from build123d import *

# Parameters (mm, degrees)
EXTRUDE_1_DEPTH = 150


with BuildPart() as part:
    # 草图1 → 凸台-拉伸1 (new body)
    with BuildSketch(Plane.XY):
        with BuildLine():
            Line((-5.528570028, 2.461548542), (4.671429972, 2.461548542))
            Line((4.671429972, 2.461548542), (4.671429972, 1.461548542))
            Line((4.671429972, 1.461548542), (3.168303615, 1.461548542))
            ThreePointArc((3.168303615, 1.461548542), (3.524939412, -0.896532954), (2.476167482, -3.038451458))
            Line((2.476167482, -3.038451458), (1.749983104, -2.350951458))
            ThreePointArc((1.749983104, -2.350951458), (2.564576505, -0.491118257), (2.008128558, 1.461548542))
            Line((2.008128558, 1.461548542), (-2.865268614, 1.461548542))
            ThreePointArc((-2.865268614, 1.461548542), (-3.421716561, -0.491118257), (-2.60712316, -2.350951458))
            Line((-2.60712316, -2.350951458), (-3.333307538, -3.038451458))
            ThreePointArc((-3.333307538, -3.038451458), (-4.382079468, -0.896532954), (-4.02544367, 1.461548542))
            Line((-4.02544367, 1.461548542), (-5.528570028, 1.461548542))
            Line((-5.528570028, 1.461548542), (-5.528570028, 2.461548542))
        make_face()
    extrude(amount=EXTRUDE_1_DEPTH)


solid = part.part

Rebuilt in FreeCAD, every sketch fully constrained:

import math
import FreeCAD as App
import Part
import Sketcher
from FreeCAD import Vector
Q = App.Units.Quantity

doc = App.newDocument("Part")
body = doc.addObject("PartDesign::Body", "Body")

# Sketch on XY plane
sketch1 = doc.addObject("Sketcher::SketchObject", "Sketch")
body.addObject(sketch1)
sketch1.AttachmentSupport = (doc.XY_Plane, [""])
sketch1.MapMode = "FlatFace"
sketch1.addGeometry(Part.LineSegment(Vector(4.7, 2.5, 0), Vector(-5.5, 2.5, 0)), False)
sketch1.addGeometry(Part.LineSegment(Vector(-5.5, 2.5, 0), Vector(-5.5, 1.5, 0)), False)
sketch1.addGeometry(Part.LineSegment(Vector(-5.5, 1.5, 0), Vector(-4, 1.5, 0)), False)
sketch1.addGeometry(Part.ArcOfCircle(Part.Circle(Vector(-0.4, -0.3, 0), Vector(0, 0, 1), 4), math.radians(154), math.radians(223)), False)
sketch1.addGeometry(Part.LineSegment(Vector(-3.3, -3, 0), Vector(-2.6, -2.4, 0)), False)
sketch1.addGeometry(Part.ArcOfCircle(Part.Circle(Vector(-0.4, -0.3, 0), Vector(0, 0, 1), 3), math.radians(144), math.radians(223)), False)
sketch1.addGeometry(Part.LineSegment(Vector(-2.9, 1.5, 0), Vector(2, 1.5, 0)), False)
sketch1.addGeometry(Part.ArcOfCircle(Part.Circle(Vector(-0.4, -0.3, 0), Vector(0, 0, 1), 3), math.radians(-43), math.radians(36)), False)
sketch1.addGeometry(Part.LineSegment(Vector(1.7, -2.4, 0), Vector(2.5, -3, 0)), False)
sketch1.addGeometry(Part.ArcOfCircle(Part.Circle(Vector(-0.4, -0.3, 0), Vector(0, 0, 1), 4), math.radians(-43), math.radians(26)), False)
sketch1.addGeometry(Part.LineSegment(Vector(3.2, 1.5, 0), Vector(4.7, 1.5, 0)), False)
sketch1.addGeometry(Part.LineSegment(Vector(4.7, 1.5, 0), Vector(4.7, 2.5, 0)), False)
sketch1.addConstraint(Sketcher.Constraint("Coincident", 0, 2, 1, 1))
sketch1.addConstraint(Sketcher.Constraint("Coincident", 1, 2, 2, 1))
sketch1.addConstraint(Sketcher.Constraint("Coincident", 2, 2, 3, 1))
sketch1.addConstraint(Sketcher.Constraint("Coincident", 3, 2, 4, 1))
sketch1.addConstraint(Sketcher.Constraint("Coincident", 4, 2, 5, 2))
sketch1.addConstraint(Sketcher.Constraint("Coincident", 5, 1, 6, 1))
sketch1.addConstraint(Sketcher.Constraint("Coincident", 6, 2, 7, 2))
sketch1.addConstraint(Sketcher.Constraint("Coincident", 7, 1, 8, 1))
sketch1.addConstraint(Sketcher.Constraint("Coincident", 8, 2, 9, 1))
sketch1.addConstraint(Sketcher.Constraint("Coincident", 9, 2, 10, 1))
sketch1.addConstraint(Sketcher.Constraint("Coincident", 10, 2, 11, 1))
sketch1.addConstraint(Sketcher.Constraint("Coincident", 11, 2, 0, 1))
sketch1.addConstraint(Sketcher.Constraint("Horizontal", 0))
sketch1.addConstraint(Sketcher.Constraint("Vertical", 1))
sketch1.addConstraint(Sketcher.Constraint("Horizontal", 2))
sketch1.addConstraint(Sketcher.Constraint("Horizontal", 6))
sketch1.addConstraint(Sketcher.Constraint("Horizontal", 10))
sketch1.addConstraint(Sketcher.Constraint("Vertical", 11))
sketch1.addConstraint(Sketcher.Constraint("Coincident", 5, 3, 3, 3))
sketch1.addConstraint(Sketcher.Constraint("Coincident", 7, 3, 3, 3))
sketch1.addConstraint(Sketcher.Constraint("Coincident", 9, 3, 3, 3))
sketch1.addConstraint(Sketcher.Constraint("Equal", 5, 7))
sketch1.addConstraint(Sketcher.Constraint("Equal", 3, 9))
sketch1.addConstraint(Sketcher.Constraint("Horizontal", 2, 2, 5, 1))
sketch1.addConstraint(Sketcher.Constraint("Horizontal", 4, 2, 7, 1))
sketch1.addConstraint(Sketcher.Constraint("Horizontal", 3, 2, 8, 2))
sketch1.addConstraint(Sketcher.Constraint("Horizontal", 6, 2, 9, 2))
sketch1.addConstraint(Sketcher.Constraint("Equal", 2, 10))
sketch1.addConstraint(Sketcher.Constraint("Radius", 3, Q("4 mm")))
sketch1.addConstraint(Sketcher.Constraint("Radius", 5, Q("3 mm")))
sketch1.addConstraint(Sketcher.Constraint("DistanceY", 1, 2, 1, 1, Q("1 mm")))
sketch1.addConstraint(Sketcher.Constraint("DistanceX", 0, 2, 0, 1, Q("10.2 mm")))
sketch1.addConstraint(Sketcher.Constraint("DistanceY", 3, 2, 2, 2, Q("4.5 mm")))
sketch1.addConstraint(Sketcher.Constraint("DistanceY", 9, 3, 0, 2, Q("2.75 mm")))
sketch1.addConstraint(Sketcher.Constraint("DistanceY", 3, 2, 4, 2, Q("0.6875 mm")))
sketch1.addConstraint(Sketcher.Constraint("DistanceX", 3, 3, -1, 1, Q("0.42857 mm")))
sketch1.addConstraint(Sketcher.Constraint("DistanceY", 3, 3, -1, 1, Q("0.288451 mm")))
pad1 = doc.addObject("PartDesign::Pad", "Pad")
body.addObject(pad1)
pad1.Profile = sketch1
pad1.Length = 150

doc.recompute()
